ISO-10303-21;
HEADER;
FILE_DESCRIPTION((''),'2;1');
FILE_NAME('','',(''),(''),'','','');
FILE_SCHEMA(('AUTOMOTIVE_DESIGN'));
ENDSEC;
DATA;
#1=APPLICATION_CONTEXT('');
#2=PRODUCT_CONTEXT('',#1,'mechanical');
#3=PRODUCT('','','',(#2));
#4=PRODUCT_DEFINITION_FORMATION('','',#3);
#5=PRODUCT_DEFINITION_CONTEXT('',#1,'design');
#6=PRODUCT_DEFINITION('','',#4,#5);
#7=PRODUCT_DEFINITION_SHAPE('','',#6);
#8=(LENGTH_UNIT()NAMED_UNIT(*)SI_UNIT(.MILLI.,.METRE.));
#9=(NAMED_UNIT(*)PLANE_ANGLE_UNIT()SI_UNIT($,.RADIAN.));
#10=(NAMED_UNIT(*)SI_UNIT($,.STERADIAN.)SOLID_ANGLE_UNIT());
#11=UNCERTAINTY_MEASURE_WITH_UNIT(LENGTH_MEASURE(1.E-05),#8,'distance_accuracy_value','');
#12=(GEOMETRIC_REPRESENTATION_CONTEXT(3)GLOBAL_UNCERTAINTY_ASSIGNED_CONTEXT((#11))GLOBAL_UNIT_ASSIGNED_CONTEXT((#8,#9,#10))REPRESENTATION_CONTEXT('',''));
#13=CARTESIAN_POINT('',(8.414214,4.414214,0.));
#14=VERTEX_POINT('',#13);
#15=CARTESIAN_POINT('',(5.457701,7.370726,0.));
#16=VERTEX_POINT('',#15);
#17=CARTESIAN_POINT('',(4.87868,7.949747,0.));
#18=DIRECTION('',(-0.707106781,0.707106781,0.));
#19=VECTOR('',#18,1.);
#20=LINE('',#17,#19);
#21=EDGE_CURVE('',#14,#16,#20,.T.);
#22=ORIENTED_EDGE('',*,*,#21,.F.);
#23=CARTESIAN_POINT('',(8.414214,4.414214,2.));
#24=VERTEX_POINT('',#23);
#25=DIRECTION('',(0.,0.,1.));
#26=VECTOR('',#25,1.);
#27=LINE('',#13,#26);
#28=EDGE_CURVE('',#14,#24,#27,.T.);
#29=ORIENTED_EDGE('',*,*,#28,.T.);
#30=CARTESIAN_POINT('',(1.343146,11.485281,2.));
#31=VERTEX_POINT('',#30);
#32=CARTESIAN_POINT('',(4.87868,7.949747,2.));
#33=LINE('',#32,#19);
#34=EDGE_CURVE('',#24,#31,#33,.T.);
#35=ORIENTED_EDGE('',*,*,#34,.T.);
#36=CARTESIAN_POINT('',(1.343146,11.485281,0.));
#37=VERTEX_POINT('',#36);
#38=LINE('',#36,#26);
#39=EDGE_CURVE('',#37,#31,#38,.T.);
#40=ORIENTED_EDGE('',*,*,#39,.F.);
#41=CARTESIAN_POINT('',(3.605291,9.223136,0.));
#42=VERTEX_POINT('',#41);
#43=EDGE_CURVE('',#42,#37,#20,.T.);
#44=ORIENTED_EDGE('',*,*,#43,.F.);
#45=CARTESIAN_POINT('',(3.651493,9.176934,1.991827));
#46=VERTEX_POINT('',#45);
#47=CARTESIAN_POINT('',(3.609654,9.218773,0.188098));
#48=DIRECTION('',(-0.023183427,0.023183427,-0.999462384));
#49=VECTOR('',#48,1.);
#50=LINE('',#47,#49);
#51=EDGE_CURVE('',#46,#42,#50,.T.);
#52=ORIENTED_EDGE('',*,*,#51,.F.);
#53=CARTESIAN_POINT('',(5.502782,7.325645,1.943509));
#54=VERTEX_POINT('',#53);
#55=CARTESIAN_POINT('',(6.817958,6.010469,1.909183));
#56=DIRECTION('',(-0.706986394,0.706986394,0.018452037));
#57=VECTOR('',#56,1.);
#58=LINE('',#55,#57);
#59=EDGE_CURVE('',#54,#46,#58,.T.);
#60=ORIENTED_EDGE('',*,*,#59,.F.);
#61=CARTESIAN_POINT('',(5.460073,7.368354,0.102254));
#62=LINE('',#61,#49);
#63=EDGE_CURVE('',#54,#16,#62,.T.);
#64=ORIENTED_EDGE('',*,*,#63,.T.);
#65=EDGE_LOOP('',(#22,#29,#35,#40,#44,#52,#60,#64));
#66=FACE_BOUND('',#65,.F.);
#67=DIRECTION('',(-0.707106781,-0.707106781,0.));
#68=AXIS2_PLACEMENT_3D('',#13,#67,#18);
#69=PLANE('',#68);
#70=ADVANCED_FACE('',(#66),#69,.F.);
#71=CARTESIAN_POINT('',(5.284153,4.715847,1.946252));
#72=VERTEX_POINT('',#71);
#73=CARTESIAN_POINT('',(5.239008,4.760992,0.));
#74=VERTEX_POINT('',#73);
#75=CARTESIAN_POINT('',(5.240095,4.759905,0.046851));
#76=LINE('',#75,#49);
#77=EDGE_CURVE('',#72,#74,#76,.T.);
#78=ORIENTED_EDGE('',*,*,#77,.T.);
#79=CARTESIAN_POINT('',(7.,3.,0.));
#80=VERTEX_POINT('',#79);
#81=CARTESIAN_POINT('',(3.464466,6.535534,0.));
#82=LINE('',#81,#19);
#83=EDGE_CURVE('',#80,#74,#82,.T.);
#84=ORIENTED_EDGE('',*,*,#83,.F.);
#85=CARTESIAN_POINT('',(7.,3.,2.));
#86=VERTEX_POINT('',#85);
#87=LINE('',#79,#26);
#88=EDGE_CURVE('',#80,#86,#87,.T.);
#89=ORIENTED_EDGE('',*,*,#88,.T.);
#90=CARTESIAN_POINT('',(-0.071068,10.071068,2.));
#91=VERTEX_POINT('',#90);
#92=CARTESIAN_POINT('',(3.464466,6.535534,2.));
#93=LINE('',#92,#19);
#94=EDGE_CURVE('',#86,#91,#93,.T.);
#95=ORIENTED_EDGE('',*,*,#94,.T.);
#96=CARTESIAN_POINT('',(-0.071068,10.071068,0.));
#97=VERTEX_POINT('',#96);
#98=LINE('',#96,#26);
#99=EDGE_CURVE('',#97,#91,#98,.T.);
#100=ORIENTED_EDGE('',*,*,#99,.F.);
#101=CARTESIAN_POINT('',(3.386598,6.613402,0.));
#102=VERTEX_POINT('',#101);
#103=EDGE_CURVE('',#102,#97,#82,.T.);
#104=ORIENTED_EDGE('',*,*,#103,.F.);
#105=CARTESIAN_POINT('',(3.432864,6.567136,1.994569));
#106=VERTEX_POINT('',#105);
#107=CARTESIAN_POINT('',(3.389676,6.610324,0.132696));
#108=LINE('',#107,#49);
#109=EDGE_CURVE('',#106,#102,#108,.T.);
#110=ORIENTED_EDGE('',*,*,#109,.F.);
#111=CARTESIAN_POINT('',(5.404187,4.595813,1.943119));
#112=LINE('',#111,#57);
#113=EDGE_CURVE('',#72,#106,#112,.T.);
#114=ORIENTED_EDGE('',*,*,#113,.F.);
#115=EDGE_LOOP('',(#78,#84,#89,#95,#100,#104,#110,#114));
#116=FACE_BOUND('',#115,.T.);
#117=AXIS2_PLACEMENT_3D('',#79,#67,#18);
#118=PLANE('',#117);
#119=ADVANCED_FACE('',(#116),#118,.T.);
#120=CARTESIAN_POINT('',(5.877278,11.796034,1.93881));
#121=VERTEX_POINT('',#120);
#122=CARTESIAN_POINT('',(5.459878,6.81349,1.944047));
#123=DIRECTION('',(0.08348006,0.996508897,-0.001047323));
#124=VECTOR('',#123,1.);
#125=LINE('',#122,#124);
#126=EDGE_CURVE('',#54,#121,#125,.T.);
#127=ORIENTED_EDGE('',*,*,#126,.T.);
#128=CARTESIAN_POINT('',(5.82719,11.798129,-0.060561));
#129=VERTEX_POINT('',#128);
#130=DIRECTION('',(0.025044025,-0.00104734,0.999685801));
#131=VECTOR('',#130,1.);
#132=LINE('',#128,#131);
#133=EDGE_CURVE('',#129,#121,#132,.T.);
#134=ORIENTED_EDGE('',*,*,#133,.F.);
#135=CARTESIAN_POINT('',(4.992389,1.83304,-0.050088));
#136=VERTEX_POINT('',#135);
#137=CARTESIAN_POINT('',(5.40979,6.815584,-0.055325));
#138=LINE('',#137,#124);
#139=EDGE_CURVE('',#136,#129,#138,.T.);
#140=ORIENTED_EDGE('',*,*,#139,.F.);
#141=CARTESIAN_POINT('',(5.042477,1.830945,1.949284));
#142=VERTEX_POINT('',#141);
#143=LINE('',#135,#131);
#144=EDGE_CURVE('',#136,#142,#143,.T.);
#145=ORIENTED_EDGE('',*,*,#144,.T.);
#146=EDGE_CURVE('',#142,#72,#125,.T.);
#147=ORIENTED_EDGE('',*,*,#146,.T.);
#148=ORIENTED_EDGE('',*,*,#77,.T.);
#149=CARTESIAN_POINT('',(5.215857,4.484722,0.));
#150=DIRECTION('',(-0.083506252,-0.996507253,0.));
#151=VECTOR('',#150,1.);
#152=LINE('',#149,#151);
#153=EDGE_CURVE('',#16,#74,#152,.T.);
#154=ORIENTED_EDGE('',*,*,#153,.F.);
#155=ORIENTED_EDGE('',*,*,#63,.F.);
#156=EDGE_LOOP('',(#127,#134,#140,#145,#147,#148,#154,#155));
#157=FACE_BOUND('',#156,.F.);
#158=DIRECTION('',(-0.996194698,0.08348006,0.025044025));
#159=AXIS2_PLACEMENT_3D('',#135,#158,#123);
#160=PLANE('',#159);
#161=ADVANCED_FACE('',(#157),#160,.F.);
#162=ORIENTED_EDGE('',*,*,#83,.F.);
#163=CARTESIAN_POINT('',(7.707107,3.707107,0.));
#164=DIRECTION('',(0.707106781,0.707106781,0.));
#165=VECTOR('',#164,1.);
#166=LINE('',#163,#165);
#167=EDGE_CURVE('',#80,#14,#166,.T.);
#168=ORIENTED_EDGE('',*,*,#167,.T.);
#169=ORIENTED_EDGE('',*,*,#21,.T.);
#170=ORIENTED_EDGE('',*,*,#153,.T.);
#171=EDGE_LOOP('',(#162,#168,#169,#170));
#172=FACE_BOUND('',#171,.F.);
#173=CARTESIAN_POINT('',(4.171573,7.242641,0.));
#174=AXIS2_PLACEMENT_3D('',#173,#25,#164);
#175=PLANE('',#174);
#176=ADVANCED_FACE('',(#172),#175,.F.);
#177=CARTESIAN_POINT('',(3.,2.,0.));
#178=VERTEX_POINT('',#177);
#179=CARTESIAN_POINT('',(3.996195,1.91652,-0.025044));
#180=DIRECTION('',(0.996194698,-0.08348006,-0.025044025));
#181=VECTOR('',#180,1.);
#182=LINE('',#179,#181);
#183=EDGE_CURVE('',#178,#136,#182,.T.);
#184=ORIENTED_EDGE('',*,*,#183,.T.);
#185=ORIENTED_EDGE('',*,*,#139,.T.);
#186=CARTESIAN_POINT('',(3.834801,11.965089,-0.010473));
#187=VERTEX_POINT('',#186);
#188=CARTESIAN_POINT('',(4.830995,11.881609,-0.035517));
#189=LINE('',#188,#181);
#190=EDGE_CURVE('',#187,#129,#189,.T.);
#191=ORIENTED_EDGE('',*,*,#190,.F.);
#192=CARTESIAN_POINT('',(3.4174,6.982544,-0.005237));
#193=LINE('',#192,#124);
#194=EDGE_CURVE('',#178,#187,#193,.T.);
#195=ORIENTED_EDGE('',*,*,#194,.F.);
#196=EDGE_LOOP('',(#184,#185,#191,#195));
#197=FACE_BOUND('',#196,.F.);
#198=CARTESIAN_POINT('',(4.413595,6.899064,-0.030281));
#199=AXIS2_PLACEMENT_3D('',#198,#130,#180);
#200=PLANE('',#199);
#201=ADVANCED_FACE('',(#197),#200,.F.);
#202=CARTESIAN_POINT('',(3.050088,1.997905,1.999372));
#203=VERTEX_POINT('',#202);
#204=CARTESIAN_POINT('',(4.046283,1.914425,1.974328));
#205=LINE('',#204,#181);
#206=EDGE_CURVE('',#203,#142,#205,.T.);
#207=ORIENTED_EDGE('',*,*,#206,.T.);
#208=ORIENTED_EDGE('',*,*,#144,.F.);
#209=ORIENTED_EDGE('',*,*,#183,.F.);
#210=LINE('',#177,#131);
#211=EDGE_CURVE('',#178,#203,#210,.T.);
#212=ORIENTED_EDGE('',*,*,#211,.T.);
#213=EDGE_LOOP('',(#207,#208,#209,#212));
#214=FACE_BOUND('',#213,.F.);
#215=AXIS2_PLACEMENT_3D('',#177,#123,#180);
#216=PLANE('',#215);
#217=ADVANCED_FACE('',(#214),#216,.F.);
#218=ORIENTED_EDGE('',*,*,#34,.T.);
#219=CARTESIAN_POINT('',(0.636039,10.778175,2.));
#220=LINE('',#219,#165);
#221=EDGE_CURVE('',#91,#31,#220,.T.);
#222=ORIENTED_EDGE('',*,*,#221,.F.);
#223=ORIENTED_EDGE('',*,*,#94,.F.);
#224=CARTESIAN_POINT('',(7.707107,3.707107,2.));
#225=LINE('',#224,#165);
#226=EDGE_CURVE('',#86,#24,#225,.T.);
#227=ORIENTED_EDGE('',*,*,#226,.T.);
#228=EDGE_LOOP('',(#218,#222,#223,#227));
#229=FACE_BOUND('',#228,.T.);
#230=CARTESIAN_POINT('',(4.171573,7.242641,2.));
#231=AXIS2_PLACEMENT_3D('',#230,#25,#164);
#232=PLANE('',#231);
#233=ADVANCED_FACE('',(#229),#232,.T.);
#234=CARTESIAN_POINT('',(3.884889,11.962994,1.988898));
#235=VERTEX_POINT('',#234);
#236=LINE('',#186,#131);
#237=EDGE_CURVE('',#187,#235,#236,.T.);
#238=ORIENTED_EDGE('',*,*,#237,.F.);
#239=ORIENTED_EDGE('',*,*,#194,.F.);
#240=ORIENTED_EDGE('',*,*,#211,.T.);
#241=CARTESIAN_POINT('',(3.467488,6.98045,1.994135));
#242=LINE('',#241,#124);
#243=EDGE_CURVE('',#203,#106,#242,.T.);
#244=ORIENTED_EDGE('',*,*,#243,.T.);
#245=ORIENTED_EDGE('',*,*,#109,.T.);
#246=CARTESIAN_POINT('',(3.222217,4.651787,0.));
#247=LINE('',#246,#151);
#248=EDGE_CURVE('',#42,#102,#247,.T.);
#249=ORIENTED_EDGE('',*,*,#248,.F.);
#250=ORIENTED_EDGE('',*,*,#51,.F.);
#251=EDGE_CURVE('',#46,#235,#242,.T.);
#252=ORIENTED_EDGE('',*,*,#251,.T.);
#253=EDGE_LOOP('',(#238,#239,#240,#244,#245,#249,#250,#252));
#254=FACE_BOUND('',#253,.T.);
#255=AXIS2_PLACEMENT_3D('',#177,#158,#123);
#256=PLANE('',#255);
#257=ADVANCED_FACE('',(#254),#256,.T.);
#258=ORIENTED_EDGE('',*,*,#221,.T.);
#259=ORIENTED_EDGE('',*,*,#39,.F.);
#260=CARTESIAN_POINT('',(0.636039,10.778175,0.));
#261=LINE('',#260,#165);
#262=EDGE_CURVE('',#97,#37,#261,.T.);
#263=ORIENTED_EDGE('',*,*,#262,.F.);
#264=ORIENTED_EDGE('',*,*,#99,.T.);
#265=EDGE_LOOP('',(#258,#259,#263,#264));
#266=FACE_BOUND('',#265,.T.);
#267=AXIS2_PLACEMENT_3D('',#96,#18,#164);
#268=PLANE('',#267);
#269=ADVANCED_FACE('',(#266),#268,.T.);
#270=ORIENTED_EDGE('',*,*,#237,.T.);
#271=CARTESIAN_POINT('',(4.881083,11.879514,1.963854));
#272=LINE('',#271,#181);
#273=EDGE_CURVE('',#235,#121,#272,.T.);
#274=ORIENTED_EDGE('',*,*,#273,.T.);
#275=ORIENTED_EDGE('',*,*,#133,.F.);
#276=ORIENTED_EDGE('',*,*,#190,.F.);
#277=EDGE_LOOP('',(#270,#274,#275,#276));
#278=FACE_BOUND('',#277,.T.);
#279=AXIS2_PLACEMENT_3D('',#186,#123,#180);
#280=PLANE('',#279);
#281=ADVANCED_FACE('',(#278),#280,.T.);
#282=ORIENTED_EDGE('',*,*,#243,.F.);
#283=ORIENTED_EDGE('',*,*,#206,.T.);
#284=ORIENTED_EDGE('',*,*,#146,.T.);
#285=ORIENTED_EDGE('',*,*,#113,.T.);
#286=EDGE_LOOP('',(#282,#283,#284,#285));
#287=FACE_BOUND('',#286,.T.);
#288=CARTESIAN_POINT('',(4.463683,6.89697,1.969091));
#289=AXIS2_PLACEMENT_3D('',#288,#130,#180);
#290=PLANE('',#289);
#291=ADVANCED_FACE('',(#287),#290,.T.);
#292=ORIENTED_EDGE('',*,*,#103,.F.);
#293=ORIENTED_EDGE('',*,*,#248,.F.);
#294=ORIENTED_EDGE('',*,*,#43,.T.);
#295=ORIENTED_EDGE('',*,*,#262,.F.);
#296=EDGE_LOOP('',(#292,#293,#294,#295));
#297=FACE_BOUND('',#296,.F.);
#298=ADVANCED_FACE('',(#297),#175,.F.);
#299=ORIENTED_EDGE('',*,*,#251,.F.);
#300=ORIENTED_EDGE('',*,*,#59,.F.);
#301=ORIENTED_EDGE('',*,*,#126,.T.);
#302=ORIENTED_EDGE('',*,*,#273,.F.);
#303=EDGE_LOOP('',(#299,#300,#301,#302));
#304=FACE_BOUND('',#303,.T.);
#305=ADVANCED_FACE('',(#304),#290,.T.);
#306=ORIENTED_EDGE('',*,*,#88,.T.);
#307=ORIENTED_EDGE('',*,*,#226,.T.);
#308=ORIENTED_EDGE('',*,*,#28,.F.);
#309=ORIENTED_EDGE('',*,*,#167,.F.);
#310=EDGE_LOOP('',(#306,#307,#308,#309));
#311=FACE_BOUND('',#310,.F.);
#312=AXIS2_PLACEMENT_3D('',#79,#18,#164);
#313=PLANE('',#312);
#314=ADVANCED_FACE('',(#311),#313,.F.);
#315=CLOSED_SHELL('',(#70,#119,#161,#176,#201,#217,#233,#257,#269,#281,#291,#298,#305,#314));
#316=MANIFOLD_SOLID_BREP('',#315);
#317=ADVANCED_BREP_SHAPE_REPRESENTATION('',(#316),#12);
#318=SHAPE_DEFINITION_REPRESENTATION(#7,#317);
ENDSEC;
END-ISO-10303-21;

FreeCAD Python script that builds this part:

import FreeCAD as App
import Part
import Sketcher
from FreeCAD import Vector

doc = App.newDocument("Part")
body = doc.addObject("PartDesign::Body", "Body")

sketch1 = body.newObject("Sketcher::SketchObject", "Sketch")
sketch1.AttachmentSupport = (doc.getObject("XY_Plane"), [""])
sketch1.MapMode = "FlatFace"
sketch1.addGeometry([
    Part.LineSegment(Vector(0, 10, 0), Vector(0, 0, 0)),
    Part.LineSegment(Vector(0, 0, 0), Vector(2, 0, 0)),
    Part.LineSegment(Vector(2, 0, 0), Vector(2, 10, 0)),
    Part.LineSegment(Vector(2, 10, 0), Vector(0, 10, 0)),
], False)
sketch1.addConstraint([
    Sketcher.Constraint("Coincident", 0, 2, 1, 1),
    Sketcher.Constraint("Coincident", 1, 2, 2, 1),
    Sketcher.Constraint("Coincident", 2, 2, 3, 1),
    Sketcher.Constraint("Coincident", 3, 2, 0, 1),
    Sketcher.Constraint("Vertical", 0),
    Sketcher.Constraint("Horizontal", 1),
    Sketcher.Constraint("Vertical", 2),
    Sketcher.Constraint("Horizontal", 3),
    Sketcher.Constraint("Coincident", 0, 2, -1, 1),
    Sketcher.Constraint("DistanceX", 1, 1, 1, 2, 2.0),
    Sketcher.Constraint("DistanceY", 0, 2, 0, 1, 10.0),
])
pad1 = body.newObject("PartDesign::Pad", "Pad")
pad1.Profile = sketch1
pad1.Length = 2
body2 = doc.addObject("PartDesign::Body", "Body001")
doc.recompute()

body.Placement = App.Placement(Vector(0, 0, 0), App.Rotation(Vector(1, 0, 0), 359.939974))
boolean = body2.newObject("PartDesign::Boolean", "Boolean")
boolean.Type = "Fuse"
boolean.addObjects([body])
body3 = doc.addObject("PartDesign::Body", "Body002")
doc.recompute()

body2.Placement = App.Placement(Vector(0, 0, 0), App.Rotation(Vector(0, 1, 0), 1.435067))
boolean2 = body3.newObject("PartDesign::Boolean", "Boolean001")
boolean2.Type = "Fuse"
boolean2.addObjects([body2])
body4 = doc.addObject("PartDesign::Body", "Body003")
doc.recompute()

body3.Placement = App.Placement(Vector(3, 2, 0), App.Rotation(Vector(0, 0, 1), 355.209866))
boolean3 = body4.newObject("PartDesign::Boolean", "Boolean002")
boolean3.Type = "Fuse"
boolean3.addObjects([body3])
body5 = doc.addObject("PartDesign::Body", "Body004")

sketch2 = body5.newObject("Sketcher::SketchObject", "Sketch001")
sketch2.AttachmentSupport = (doc.getObject("XY_Plane004"), [""])
sketch2.MapMode = "FlatFace"
sketch2.addGeometry([
    Part.LineSegment(Vector(0, 10, 0), Vector(0, 0, 0)),
    Part.LineSegment(Vector(0, 0, 0), Vector(2, 0, 0)),
    Part.LineSegment(Vector(2, 0, 0), Vector(2, 10, 0)),
    Part.LineSegment(Vector(2, 10, 0), Vector(0, 10, 0)),
], False)
sketch2.addConstraint([
    Sketcher.Constraint("Coincident", 0, 2, 1, 1),
    Sketcher.Constraint("Coincident", 1, 2, 2, 1),
    Sketcher.Constraint("Coincident", 2, 2, 3, 1),
    Sketcher.Constraint("Coincident", 3, 2, 0, 1),
    Sketcher.Constraint("Vertical", 0),
    Sketcher.Constraint("Horizontal", 1),
    Sketcher.Constraint("Vertical", 2),
    Sketcher.Constraint("Horizontal", 3),
    Sketcher.Constraint("Coincident", 0, 2, -1, 1),
    Sketcher.Constraint("DistanceX", 1, 1, 1, 2, 2.0),
    Sketcher.Constraint("DistanceY", 0, 2, 0, 1, 10.0),
])
pad2 = body5.newObject("PartDesign::Pad", "Pad001")
pad2.Profile = sketch2
pad2.Length = 2
body6 = doc.addObject("PartDesign::Body", "Body005")
doc.recompute()

body5.Placement = App.Placement(Vector(7, 3, 0), App.Rotation(Vector(0, 0, 1), 45))
boolean4 = body6.newObject("PartDesign::Boolean", "Boolean003")
boolean4.Type = "Fuse"
boolean4.addObjects([body5])
doc.recompute()

boolean5 = body6.newObject("PartDesign::Boolean", "Boolean004")
boolean5.Type = "Fuse"
boolean5.addObjects([body4])

doc.recompute()
